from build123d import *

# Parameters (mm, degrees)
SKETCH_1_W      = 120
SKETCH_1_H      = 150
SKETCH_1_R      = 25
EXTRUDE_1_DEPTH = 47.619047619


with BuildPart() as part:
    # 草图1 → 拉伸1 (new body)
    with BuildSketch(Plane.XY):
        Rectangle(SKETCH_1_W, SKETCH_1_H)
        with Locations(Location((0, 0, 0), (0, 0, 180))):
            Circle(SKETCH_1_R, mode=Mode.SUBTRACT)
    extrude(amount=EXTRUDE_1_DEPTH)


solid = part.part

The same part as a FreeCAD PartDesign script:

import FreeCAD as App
import Part
import Sketcher

V = App.Vector

doc = App.newDocument("Part")
body = doc.addObject("PartDesign::Body", "Body")

# Sketch on XY plane
sketch1 = body.newObject("Sketcher::SketchObject", "Sketch")
sketch1.AttachmentSupport = (doc.getObject("XY_Plane"), [""])
sketch1.MapMode = "FlatFace"
sketch1.addGeometry(Part.LineSegment(V(-60, 75, 0), V(-60, -75, 0)), False)
sketch1.addGeometry(Part.LineSegment(V(-60, -75, 0), V(60, -75, 0)), False)
sketch1.addGeometry(Part.LineSegment(V(60, -75, 0), V(60, 75, 0)), False)
sketch1.addGeometry(Part.LineSegment(V(60, 75, 0), V(-60, 75, 0)), False)
sketch1.addGeometry(Part.Circle(V(0, 0, 0), V(0, 0, 1), 25), False)
sketch1.addConstraint(Sketcher.Constraint("Coincident", 0, 2, 1, 1))
sketch1.addConstraint(Sketcher.Constraint("Coincident", 1, 2, 2, 1))
sketch1.addConstraint(Sketcher.Constraint("Coincident", 2, 2, 3, 1))
sketch1.addConstraint(Sketcher.Constraint("Coincident", 3, 2, 0, 1))
sketch1.addConstraint(Sketcher.Constraint("Vertical", 0))
sketch1.addConstraint(Sketcher.Constraint("Horizontal", 1))
sketch1.addConstraint(Sketcher.Constraint("Vertical", 2))
sketch1.addConstraint(Sketcher.Constraint("Horizontal", 3))
sketch1.addConstraint(Sketcher.Constraint("Coincident", 4, 3, -1, 1))
sketch1.addConstraint(Sketcher.Constraint("Symmetric", 0, 2, 2, 2, -1, 1))
sketch1.addConstraint(Sketcher.Constraint("Diameter", 4, 50.0))
sketch1.addConstraint(Sketcher.Constraint("DistanceX", 1, 1, 1, 2, 120.0))
sketch1.addConstraint(Sketcher.Constraint("DistanceY", 0, 2, 0, 1, 150.0))
pad1 = body.newObject("PartDesign::Pad", "Pad")
pad1.Profile = sketch1
pad1.Length = 47.619048

doc.recompute()
